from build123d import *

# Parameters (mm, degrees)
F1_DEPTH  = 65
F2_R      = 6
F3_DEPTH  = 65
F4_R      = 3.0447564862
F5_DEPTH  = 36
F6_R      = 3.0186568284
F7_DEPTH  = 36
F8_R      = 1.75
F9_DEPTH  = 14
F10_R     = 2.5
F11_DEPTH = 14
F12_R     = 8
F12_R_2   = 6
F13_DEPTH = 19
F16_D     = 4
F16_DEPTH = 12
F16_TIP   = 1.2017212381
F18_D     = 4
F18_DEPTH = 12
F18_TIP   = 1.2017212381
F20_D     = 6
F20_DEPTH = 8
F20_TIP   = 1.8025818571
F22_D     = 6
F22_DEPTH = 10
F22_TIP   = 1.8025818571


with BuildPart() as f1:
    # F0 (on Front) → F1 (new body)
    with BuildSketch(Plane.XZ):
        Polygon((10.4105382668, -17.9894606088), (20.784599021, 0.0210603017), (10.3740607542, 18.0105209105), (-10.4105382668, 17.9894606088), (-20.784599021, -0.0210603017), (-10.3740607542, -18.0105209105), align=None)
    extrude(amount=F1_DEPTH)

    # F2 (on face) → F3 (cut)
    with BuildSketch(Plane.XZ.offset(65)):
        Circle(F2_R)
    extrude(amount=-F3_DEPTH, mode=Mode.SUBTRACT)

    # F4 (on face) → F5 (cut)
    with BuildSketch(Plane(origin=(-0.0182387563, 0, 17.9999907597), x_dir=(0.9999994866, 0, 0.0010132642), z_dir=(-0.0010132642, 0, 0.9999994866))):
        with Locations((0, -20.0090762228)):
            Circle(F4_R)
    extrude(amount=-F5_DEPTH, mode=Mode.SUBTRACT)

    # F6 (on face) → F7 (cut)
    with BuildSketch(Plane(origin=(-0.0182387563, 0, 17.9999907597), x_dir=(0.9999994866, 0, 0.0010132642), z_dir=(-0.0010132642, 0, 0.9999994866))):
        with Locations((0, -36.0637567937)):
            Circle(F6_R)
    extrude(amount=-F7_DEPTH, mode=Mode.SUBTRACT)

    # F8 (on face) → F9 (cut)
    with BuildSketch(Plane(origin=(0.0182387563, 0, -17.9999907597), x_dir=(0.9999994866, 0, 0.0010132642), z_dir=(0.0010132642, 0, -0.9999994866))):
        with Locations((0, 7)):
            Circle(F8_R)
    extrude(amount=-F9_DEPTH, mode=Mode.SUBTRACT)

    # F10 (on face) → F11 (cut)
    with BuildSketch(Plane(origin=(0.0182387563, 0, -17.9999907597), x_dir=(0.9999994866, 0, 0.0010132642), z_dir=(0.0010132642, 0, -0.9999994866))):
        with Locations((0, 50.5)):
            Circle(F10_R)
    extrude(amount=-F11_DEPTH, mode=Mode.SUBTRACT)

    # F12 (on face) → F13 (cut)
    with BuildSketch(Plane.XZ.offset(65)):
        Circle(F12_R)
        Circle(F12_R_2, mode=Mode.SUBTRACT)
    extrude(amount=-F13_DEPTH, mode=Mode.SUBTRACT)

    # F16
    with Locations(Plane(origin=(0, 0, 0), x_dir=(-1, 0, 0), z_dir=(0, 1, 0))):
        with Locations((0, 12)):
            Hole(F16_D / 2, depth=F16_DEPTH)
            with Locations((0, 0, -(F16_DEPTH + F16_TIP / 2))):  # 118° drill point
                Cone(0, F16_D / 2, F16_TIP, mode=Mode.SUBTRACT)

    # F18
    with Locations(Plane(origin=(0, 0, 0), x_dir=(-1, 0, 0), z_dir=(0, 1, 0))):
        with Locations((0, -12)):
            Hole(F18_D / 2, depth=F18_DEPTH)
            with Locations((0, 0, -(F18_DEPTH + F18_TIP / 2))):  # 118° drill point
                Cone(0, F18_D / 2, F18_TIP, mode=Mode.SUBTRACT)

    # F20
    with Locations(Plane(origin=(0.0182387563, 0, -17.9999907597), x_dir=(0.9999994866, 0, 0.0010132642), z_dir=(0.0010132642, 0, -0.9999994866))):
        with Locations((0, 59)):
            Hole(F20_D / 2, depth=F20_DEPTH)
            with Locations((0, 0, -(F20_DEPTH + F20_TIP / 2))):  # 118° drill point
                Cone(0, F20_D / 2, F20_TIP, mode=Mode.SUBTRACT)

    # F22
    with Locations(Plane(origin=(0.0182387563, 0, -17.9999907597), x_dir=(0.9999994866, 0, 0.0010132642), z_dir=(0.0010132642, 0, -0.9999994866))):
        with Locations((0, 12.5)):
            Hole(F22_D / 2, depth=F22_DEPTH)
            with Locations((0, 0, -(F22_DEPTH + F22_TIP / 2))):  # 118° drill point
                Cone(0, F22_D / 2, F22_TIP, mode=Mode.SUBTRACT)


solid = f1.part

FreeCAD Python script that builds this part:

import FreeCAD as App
import Part
import Sketcher

V = App.Vector


def add_polygon(sketch, points):
    """Adds a closed chain of lines whose ends are joined by coincident constraints."""
    first, n = sketch.GeometryCount, len(points)
    for a, b in zip(points, points[1:] + points[:1]):
        sketch.addGeometry(Part.LineSegment(App.Vector(*a, 0), App.Vector(*b, 0)), False)
    for i in range(n):
        sketch.addConstraint(Sketcher.Constraint("Coincident", first + i, 2, first + (i + 1) % n, 1))

doc = App.newDocument("Part")
params = doc.addObject("Spreadsheet::Sheet", "Params")
for row, (alias, value) in enumerate([
    ("pad1_length", "65 mm"),
    ("sketch2_diameter", "12 mm"),
    ("pocket1_length", "65 mm"),
    ("pocket2_length", "36 mm"),
    ("pocket3_length", "36 mm"),
    ("sketch5_diameter", "3.5 mm"),
    ("pocket4_length", "14 mm"),
    ("sketch6_diameter", "5 mm"),
    ("pocket5_length", "14 mm"),
    ("sketch7_diameter", "16 mm"),
    ("sketch7_diameter2", "12 mm"),
    ("pocket6_length", "19 mm"),
    ("sketch8_diameter", "4 mm"),
    ("hole_diameter", "4 mm"),
    ("hole_depth", "12 mm"),
    ("sketch9_diameter", "4 mm"),
    ("hole2_diameter", "4 mm"),
    ("hole2_depth", "12 mm"),
    ("sketch10_diameter", "6 mm"),
    ("hole3_diameter", "6 mm"),
    ("hole3_depth", "8 mm"),
    ("sketch11_diameter", "6 mm"),
    ("hole4_diameter", "6 mm"),
    ("hole4_depth", "10 mm"),
], start=1):
    params.set(f"A{row}", alias)
    params.set(f"B{row}", "=" + value)
    params.setAlias(f"B{row}", alias)

body = doc.addObject("PartDesign::Body", "Body")

sketch1 = doc.addObject("Sketcher::SketchObject", "Sketch")
body.addObject(sketch1)
sketch1.AttachmentSupport = (doc.XZ_Plane, [""])
sketch1.MapMode = "FlatFace"
add_polygon(sketch1, [(10, -18), (21, 0), (10, 18), (-10, 18), (-21, 0), (-10, -18)])
sketch1.addConstraint(Sketcher.Constraint("Symmetric", 0, 2, 3, 2, -1, 1))
sketch1.addConstraint(Sketcher.Constraint("Symmetric", 1, 2, 4, 2, -1, 1))
sketch1.addConstraint(Sketcher.Constraint("Symmetric", 2, 2, 5, 2, -1, 1))
sketch1.addConstraint(Sketcher.Constraint("Equal", 0, 1))
sketch1.addConstraint(Sketcher.Constraint("Equal", 1, 2))
sketch1.addConstraint(Sketcher.Constraint("DistanceX", -1, 1, 0, 2, 20.784599))
sketch1.addConstraint(Sketcher.Constraint("DistanceX", 2, 2, 1, 2, 20.784599))
sketch1.addConstraint(Sketcher.Constraint("DistanceY", 0, 2, 2, 2, 17.9684))
sketch1.addConstraint(Sketcher.Constraint("DistanceY", -1, 1, 0, 2, 0.02106))
pad1 = doc.addObject("PartDesign::Pad", "Pad")
body.addObject(pad1)
pad1.Profile = sketch1
pad1.setExpression("Length", "Params.pad1_length")

sketch2 = doc.addObject("Sketcher::SketchObject", "Sketch001")
body.addObject(sketch2)
sketch2.AttachmentSupport = (doc.XZ_Plane, [""])
sketch2.MapMode = "FlatFace"
sketch2.AttachmentOffset = App.Placement(V(0, 0, 65), App.Rotation())
sketch2.addGeometry(Part.Circle(V(0, 0, 0), V(0, 0, 1), 6), False)
sketch2.addConstraint(Sketcher.Constraint("Coincident", 0, 3, -1, 1))
sketch2.addConstraint(Sketcher.Constraint("Diameter", 0, 12.0))
sketch2.setExpression("Constraints[1]", "Params.sketch2_diameter")
pocket1 = doc.addObject("PartDesign::Pocket", "Pocket")
body.addObject(pocket1)
pocket1.Profile = sketch2
pocket1.setExpression("Length", "Params.pocket1_length")

sketch3 = doc.addObject("Sketcher::SketchObject", "Sketch002")
body.addObject(sketch3)
sketch3.Placement = App.Placement(V(-0.018239, 0, 17.999991), App.Rotation(V(0.999999487, 0, 0.001013264), V(0, 1.000000001, 0), V(-0.001013264, 0, 0.999999487), "ZXY"))
sketch3.addGeometry(Part.Circle(V(0, -20, 0), V(0, 0, 1), 3), False)
sketch3.addConstraint(Sketcher.Constraint("PointOnObject", 0, 3, -2))
sketch3.addConstraint(Sketcher.Constraint("Diameter", 0, 6.089513))
sketch3.addConstraint(Sketcher.Constraint("DistanceY", 0, 3, -1, 1, 20.009076))
pocket2 = doc.addObject("PartDesign::Pocket", "Pocket001")
body.addObject(pocket2)
pocket2.Profile = sketch3
pocket2.setExpression("Length", "Params.pocket2_length")

sketch4 = doc.addObject("Sketcher::SketchObject", "Sketch003")
body.addObject(sketch4)
sketch4.Placement = App.Placement(V(-0.018239, 0, 17.999991), App.Rotation(V(0.999999487, 0, 0.001013264), V(0, 1.000000001, 0), V(-0.001013264, 0, 0.999999487), "ZXY"))
sketch4.addGeometry(Part.Circle(V(0, -36.1, 0), V(0, 0, 1), 3), False)
sketch4.addConstraint(Sketcher.Constraint("PointOnObject", 0, 3, -2))
sketch4.addConstraint(Sketcher.Constraint("Diameter", 0, 6.037314))
sketch4.addConstraint(Sketcher.Constraint("DistanceY", 0, 3, -1, 1, 36.063757))
pocket3 = doc.addObject("PartDesign::Pocket", "Pocket002")
body.addObject(pocket3)
pocket3.Profile = sketch4
pocket3.setExpression("Length", "Params.pocket3_length")

sketch5 = doc.addObject("Sketcher::SketchObject", "Sketch004")
body.addObject(sketch5)
sketch5.Placement = App.Placement(V(0.018239, 0, -17.999991), App.Rotation(V(0.999999487, 0, 0.001013264), V(0, -1.000000001, 0), V(0.001013264, 0, -0.999999487), "ZXY"))
sketch5.addGeometry(Part.Circle(V(0, 7, 0), V(0, 0, 1), 1.8), False)
sketch5.addConstraint(Sketcher.Constraint("PointOnObject", 0, 3, -2))
sketch5.addConstraint(Sketcher.Constraint("Diameter", 0, 3.5))
sketch5.addConstraint(Sketcher.Constraint("DistanceY", -1, 1, 0, 3, 7.0))
sketch5.setExpression("Constraints[1]", "Params.sketch5_diameter")
pocket4 = doc.addObject("PartDesign::Pocket", "Pocket003")
body.addObject(pocket4)
pocket4.Profile = sketch5
pocket4.setExpression("Length", "Params.pocket4_length")

sketch6 = doc.addObject("Sketcher::SketchObject", "Sketch005")
body.addObject(sketch6)
sketch6.Placement = App.Placement(V(0.018239, 0, -17.999991), App.Rotation(V(0.999999487, 0, 0.001013264), V(0, -1.000000001, 0), V(0.001013264, 0, -0.999999487), "ZXY"))
sketch6.addGeometry(Part.Circle(V(0, 50.5, 0), V(0, 0, 1), 2.5), False)
sketch6.addConstraint(Sketcher.Constraint("PointOnObject", 0, 3, -2))
sketch6.addConstraint(Sketcher.Constraint("Diameter", 0, 5.0))
sketch6.addConstraint(Sketcher.Constraint("DistanceY", -1, 1, 0, 3, 50.5))
sketch6.setExpression("Constraints[1]", "Params.sketch6_diameter")
pocket5 = doc.addObject("PartDesign::Pocket", "Pocket004")
body.addObject(pocket5)
pocket5.Profile = sketch6
pocket5.setExpression("Length", "Params.pocket5_length")

sketch7 = doc.addObject("Sketcher::SketchObject", "Sketch006")
body.addObject(sketch7)
sketch7.AttachmentSupport = (doc.XZ_Plane, [""])
sketch7.MapMode = "FlatFace"
sketch7.AttachmentOffset = App.Placement(V(0, 0, 65), App.Rotation())
sketch7.addGeometry(Part.Circle(V(0, 0, 0), V(0, 0, 1), 8), False)
sketch7.addGeometry(Part.Circle(V(0, 0, 0), V(0, 0, 1), 6), False)
sketch7.addConstraint(Sketcher.Constraint("Coincident", 0, 3, -1, 1))
sketch7.addConstraint(Sketcher.Constraint("Coincident", 1, 3, -1, 1))
sketch7.addConstraint(Sketcher.Constraint("Diameter", 0, 16.0))
sketch7.addConstraint(Sketcher.Constraint("Diameter", 1, 12.0))
sketch7.setExpression("Constraints[2]", "Params.sketch7_diameter")
sketch7.setExpression("Constraints[3]", "Params.sketch7_diameter2")
pocket6 = doc.addObject("PartDesign::Pocket", "Pocket005")
body.addObject(pocket6)
pocket6.Profile = sketch7
pocket6.setExpression("Length", "Params.pocket6_length")

sketch8 = doc.addObject("Sketcher::SketchObject", "Sketch007")
body.addObject(sketch8)
sketch8.AttachmentSupport = (doc.XZ_Plane, [""])
sketch8.MapMode = "FlatFace"
sketch8.addGeometry(Part.Circle(V(0, 12, 0), V(0, 0, 1), 2), False)
sketch8.addConstraint(Sketcher.Constraint("PointOnObject", 0, 3, -2))
sketch8.addConstraint(Sketcher.Constraint("Diameter", 0, 4.0))
sketch8.addConstraint(Sketcher.Constraint("DistanceY", -1, 1, 0, 3, 12.0))
sketch8.setExpression("Constraints[1]", "Params.sketch8_diameter")
doc.recompute()
hole = doc.addObject("PartDesign::Hole", "Hole")
body.addObject(hole)
hole.Profile = sketch8
hole.ThreadType = "None"
hole.setExpression("Diameter", "Params.hole_diameter")
hole.DepthType = "Dimension"
hole.setExpression("Depth", "Params.hole_depth")
hole.DrillPoint = "Angled"
hole.DrillPointAngle = 118
hole.Reversed = True

sketch9 = doc.addObject("Sketcher::SketchObject", "Sketch008")
body.addObject(sketch9)
sketch9.AttachmentSupport = (doc.XZ_Plane, [""])
sketch9.MapMode = "FlatFace"
sketch9.addGeometry(Part.Circle(V(0, -12, 0), V(0, 0, 1), 2), False)
sketch9.addConstraint(Sketcher.Constraint("PointOnObject", 0, 3, -2))
sketch9.addConstraint(Sketcher.Constraint("Diameter", 0, 4.0))
sketch9.addConstraint(Sketcher.Constraint("DistanceY", 0, 3, -1, 1, 12.0))
sketch9.setExpression("Constraints[1]", "Params.sketch9_diameter")
doc.recompute()
hole2 = doc.addObject("PartDesign::Hole", "Hole001")
body.addObject(hole2)
hole2.Profile = sketch9
hole2.ThreadType = "None"
hole2.setExpression("Diameter", "Params.hole2_diameter")
hole2.DepthType = "Dimension"
hole2.setExpression("Depth", "Params.hole2_depth")
hole2.DrillPoint = "Angled"
hole2.DrillPointAngle = 118
hole2.Reversed = True

sketch10 = doc.addObject("Sketcher::SketchObject", "Sketch009")
body.addObject(sketch10)
sketch10.Placement = App.Placement(V(0.018239, 0, -17.999991), App.Rotation(V(0.999999487, 0, 0.001013264), V(0, -1.000000001, 0), V(0.001013264, 0, -0.999999487), "ZXY"))
sketch10.addGeometry(Part.Circle(V(0, 59, 0), V(0, 0, 1), 3), False)
sketch10.addConstraint(Sketcher.Constraint("PointOnObject", 0, 3, -2))
sketch10.addConstraint(Sketcher.Constraint("Diameter", 0, 6.0))
sketch10.addConstraint(Sketcher.Constraint("DistanceY", -1, 1, 0, 3, 59.0))
sketch10.setExpression("Constraints[1]", "Params.sketch10_diameter")
doc.recompute()
hole3 = doc.addObject("PartDesign::Hole", "Hole002")
body.addObject(hole3)
hole3.Profile = sketch10
hole3.ThreadType = "None"
hole3.setExpression("Diameter", "Params.hole3_diameter")
hole3.DepthType = "Dimension"
hole3.setExpression("Depth", "Params.hole3_depth")
hole3.DrillPoint = "Angled"
hole3.DrillPointAngle = 118

sketch11 = doc.addObject("Sketcher::SketchObject", "Sketch010")
body.addObject(sketch11)
sketch11.Placement = App.Placement(V(0.018239, 0, -17.999991), App.Rotation(V(0.999999487, 0, 0.001013264), V(0, -1.000000001, 0), V(0.001013264, 0, -0.999999487), "ZXY"))
sketch11.addGeometry(Part.Circle(V(0, 12.5, 0), V(0, 0, 1), 3), False)
sketch11.addConstraint(Sketcher.Constraint("PointOnObject", 0, 3, -2))
sketch11.addConstraint(Sketcher.Constraint("Diameter", 0, 6.0))
sketch11.addConstraint(Sketcher.Constraint("DistanceY", -1, 1, 0, 3, 12.5))
sketch11.setExpression("Constraints[1]", "Params.sketch11_diameter")
doc.recompute()
hole4 = doc.addObject("PartDesign::Hole", "Hole003")
body.addObject(hole4)
hole4.Profile = sketch11
hole4.ThreadType = "None"
hole4.setExpression("Diameter", "Params.hole4_diameter")
hole4.DepthType = "Dimension"
hole4.setExpression("Depth", "Params.hole4_depth")
hole4.DrillPoint = "Angled"
hole4.DrillPointAngle = 118

doc.recompute()
